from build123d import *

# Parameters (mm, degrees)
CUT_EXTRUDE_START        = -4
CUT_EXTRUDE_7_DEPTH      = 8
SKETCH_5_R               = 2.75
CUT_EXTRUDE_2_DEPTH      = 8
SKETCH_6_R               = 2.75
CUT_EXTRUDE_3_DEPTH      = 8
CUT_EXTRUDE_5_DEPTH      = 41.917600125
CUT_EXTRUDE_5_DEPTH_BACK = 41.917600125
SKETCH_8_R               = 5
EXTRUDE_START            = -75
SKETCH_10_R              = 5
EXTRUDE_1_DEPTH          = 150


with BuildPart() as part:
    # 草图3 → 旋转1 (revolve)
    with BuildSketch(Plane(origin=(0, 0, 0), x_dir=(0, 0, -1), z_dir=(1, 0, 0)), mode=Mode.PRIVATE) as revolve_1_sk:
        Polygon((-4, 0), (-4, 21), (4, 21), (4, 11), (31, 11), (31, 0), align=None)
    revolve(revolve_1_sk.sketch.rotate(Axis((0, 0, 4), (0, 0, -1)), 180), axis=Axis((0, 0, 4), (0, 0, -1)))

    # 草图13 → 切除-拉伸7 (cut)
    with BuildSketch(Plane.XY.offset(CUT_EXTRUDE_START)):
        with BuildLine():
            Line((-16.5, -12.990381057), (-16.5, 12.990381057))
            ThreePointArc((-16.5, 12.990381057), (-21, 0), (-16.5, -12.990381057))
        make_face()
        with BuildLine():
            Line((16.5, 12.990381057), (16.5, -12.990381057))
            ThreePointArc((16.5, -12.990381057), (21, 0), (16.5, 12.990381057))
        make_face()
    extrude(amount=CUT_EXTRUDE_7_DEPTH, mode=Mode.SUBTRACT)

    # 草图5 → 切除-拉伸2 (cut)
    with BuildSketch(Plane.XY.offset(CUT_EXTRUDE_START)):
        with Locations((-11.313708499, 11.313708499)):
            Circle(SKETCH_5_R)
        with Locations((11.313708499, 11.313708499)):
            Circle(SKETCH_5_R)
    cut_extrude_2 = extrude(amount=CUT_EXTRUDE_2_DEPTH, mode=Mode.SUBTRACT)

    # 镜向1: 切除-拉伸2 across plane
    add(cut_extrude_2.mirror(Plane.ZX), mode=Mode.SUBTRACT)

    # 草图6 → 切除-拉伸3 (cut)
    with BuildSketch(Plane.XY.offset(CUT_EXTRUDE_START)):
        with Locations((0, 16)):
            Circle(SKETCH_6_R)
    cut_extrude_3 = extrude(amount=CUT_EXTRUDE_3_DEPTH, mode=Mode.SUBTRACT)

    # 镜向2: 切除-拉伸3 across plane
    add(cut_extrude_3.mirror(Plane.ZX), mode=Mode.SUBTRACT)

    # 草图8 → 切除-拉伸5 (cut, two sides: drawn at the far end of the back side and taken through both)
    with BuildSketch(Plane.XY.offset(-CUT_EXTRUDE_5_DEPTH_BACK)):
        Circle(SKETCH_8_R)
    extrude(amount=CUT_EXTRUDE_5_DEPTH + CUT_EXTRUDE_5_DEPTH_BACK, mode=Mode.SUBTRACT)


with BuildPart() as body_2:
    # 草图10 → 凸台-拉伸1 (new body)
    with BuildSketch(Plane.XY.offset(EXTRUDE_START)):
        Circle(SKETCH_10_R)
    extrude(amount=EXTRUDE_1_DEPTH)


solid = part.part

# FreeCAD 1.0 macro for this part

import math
import FreeCAD as App
import Part
import Sketcher

V = App.Vector
Q = App.Units.Quantity


def add_polygon(sketch, points):
    """Adds a closed chain of lines whose ends are joined by coincident constraints."""
    first, n = sketch.GeometryCount, len(points)
    for a, b in zip(points, points[1:] + points[:1]):
        sketch.addGeometry(Part.LineSegment(App.Vector(*a, 0), App.Vector(*b, 0)), False)
    for i in range(n):
        sketch.addConstraint(Sketcher.Constraint("Coincident", first + i, 2, first + (i + 1) % n, 1))

doc = App.newDocument("Part")
params = doc.addObject("Spreadsheet::Sheet", "Params")
for row, (alias, value) in enumerate([
    ("sketch1_width", "21 mm"),
    ("sketch1_width2", "11 mm"),
    ("sketch1_height", "35 mm"),
    ("sketch1_height2", "27 mm"),
    ("revolution_angle", "360 deg"),
    ("sketch2_radius", "21 mm"),
    ("pocket1_length", "8 mm"),
    ("sketch3_diameter", "5.5 mm"),
    ("pocket2_length", "8 mm"),
    ("sketch4_diameter", "5.5 mm"),
    ("pocket3_length", "8 mm"),
    ("sketch5_diameter", "10 mm"),
    ("sketch6_diameter", "10 mm"),
    ("pad1_length", "150 mm"),
], start=1):
    params.set(f"A{row}", alias)
    params.set(f"B{row}", "=" + value)
    params.setAlias(f"B{row}", alias)

body = doc.addObject("PartDesign::Body", "Body")

# Sketch on YZ plane
sketch1 = body.newObject("Sketcher::SketchObject", "Sketch")
sketch1.AttachmentSupport = (doc.getObject("YZ_Plane"), [""])
sketch1.MapMode = "FlatFace"
add_polygon(sketch1, [(21, 4), (0, 4), (0, -31), (11, -31), (11, -4), (21, -4)])  # lines 0-5
sketch1.addConstraint(Sketcher.Constraint("Horizontal", 0))
sketch1.addConstraint(Sketcher.Constraint("Vertical", 1))
sketch1.addConstraint(Sketcher.Constraint("Horizontal", 2))
sketch1.addConstraint(Sketcher.Constraint("Vertical", 3))
sketch1.addConstraint(Sketcher.Constraint("Horizontal", 4))
sketch1.addConstraint(Sketcher.Constraint("Vertical", 5))
sketch1.addConstraint(Sketcher.Constraint("PointOnObject", 0, 2, -2))
sketch1.addConstraint(Sketcher.Constraint("DistanceX", 0, 2, 0, 1, Q("21 mm")))
sketch1.addConstraint(Sketcher.Constraint("DistanceX", 2, 1, 2, 2, Q("11 mm")))
sketch1.addConstraint(Sketcher.Constraint("DistanceY", 1, 2, 1, 1, Q("35 mm")))
sketch1.addConstraint(Sketcher.Constraint("DistanceY", 3, 1, 3, 2, Q("27 mm")))
sketch1.addConstraint(Sketcher.Constraint("DistanceY", -1, 1, 0, 2, Q("4 mm")))
sketch1.setExpression("Constraints[13]", "Params.sketch1_width")
sketch1.setExpression("Constraints[14]", "Params.sketch1_width2")
sketch1.setExpression("Constraints[15]", "Params.sketch1_height")
sketch1.setExpression("Constraints[16]", "Params.sketch1_height2")
revolution = body.newObject("PartDesign::Revolution", "Revolution")
revolution.Profile = sketch1
revolution.ReferenceAxis = (sketch1, ["V_Axis"])
revolution.setExpression("Angle", "Params.revolution_angle")

# Sketch on XY plane
sketch2 = body.newObject("Sketcher::SketchObject", "Sketch001")
sketch2.AttachmentSupport = (doc.getObject("XY_Plane"), [""])
sketch2.MapMode = "FlatFace"
sketch2.AttachmentOffset = App.Placement(V(0, 0, -4), App.Rotation())
sketch2.addGeometry(Part.LineSegment(V(-16.5, -12.990381, 0), V(-16.5, 12.990381, 0)), False)
sketch2.addGeometry(Part.ArcOfCircle(Part.Circle(V(0, 0, 0), V(0, 0, 1), 21), math.radians(141.786789), math.radians(218.213211)), False)
sketch2.addGeometry(Part.LineSegment(V(16.5, 12.990381, 0), V(16.5, -12.990381, 0)), False)
sketch2.addGeometry(Part.ArcOfCircle(Part.Circle(V(0, 0, 0), V(0, 0, 1), 21), math.radians(-38.213211), math.radians(38.213211)), False)
sketch2.addConstraint(Sketcher.Constraint("Coincident", 0, 1, 1, 2))
sketch2.addConstraint(Sketcher.Constraint("Coincident", 1, 1, 0, 2))
sketch2.addConstraint(Sketcher.Constraint("Coincident", 2, 1, 3, 2))
sketch2.addConstraint(Sketcher.Constraint("Coincident", 3, 1, 2, 2))
sketch2.addConstraint(Sketcher.Constraint("Vertical", 0))
sketch2.addConstraint(Sketcher.Constraint("Vertical", 2))
sketch2.addConstraint(Sketcher.Constraint("Coincident", 1, 3, -1, 1))
sketch2.addConstraint(Sketcher.Constraint("Coincident", 3, 3, -1, 1))
sketch2.addConstraint(Sketcher.Constraint("Equal", 1, 3))
sketch2.addConstraint(Sketcher.Constraint("Horizontal", 1, 1, 2, 1))
sketch2.addConstraint(Sketcher.Constraint("Radius", 1, Q("21 mm")))
sketch2.addConstraint(Sketcher.Constraint("DistanceX", 1, 1, 2, 1, Q("33 mm")))
sketch2.setExpression("Constraints[10]", "Params.sketch2_radius")
pocket1 = body.newObject("PartDesign::Pocket", "Pocket")
pocket1.Profile = sketch2
pocket1.setExpression("Length", "Params.pocket1_length")
pocket1.Reversed = True

# Sketch on XY plane
sketch3 = body.newObject("Sketcher::SketchObject", "Sketch002")
sketch3.AttachmentSupport = (doc.getObject("XY_Plane"), [""])
sketch3.MapMode = "FlatFace"
sketch3.AttachmentOffset = App.Placement(V(0, 0, -4), App.Rotation())
sketch3.addGeometry(Part.Circle(V(-11.313708, 11.313708, 0), V(0, 0, 1), 2.75), False)
sketch3.addGeometry(Part.Circle(V(11.313708, 11.313708, 0), V(0, 0, 1), 2.75), False)
sketch3.addConstraint(Sketcher.Constraint("Equal", 0, 1))
sketch3.addConstraint(Sketcher.Constraint("Symmetric", 0, 3, 1, 3, -2))
sketch3.addConstraint(Sketcher.Constraint("Diameter", 0, Q("5.5 mm")))
sketch3.addConstraint(Sketcher.Constraint("DistanceX", 0, 3, -1, 1, Q("11.313708 mm")))
sketch3.addConstraint(Sketcher.Constraint("DistanceY", -1, 1, 0, 3, Q("11.313708 mm")))
sketch3.setExpression("Constraints[2]", "Params.sketch3_diameter")
pocket2 = body.newObject("PartDesign::Pocket", "Pocket001")
pocket2.Profile = sketch3
pocket2.setExpression("Length", "Params.pocket2_length")
pocket2.Reversed = True
doc.recompute()

mirrored = body.newObject("PartDesign::Mirrored", "Mirrored")
mirrored.Originals = [pocket2]
mirrored.MirrorPlane = (doc.getObject("XZ_Plane"), [""])
body.Tip = mirrored

# Sketch on XY plane
sketch4 = body.newObject("Sketcher::SketchObject", "Sketch003")
sketch4.AttachmentSupport = (doc.getObject("XY_Plane"), [""])
sketch4.MapMode = "FlatFace"
sketch4.AttachmentOffset = App.Placement(V(0, 0, -4), App.Rotation())
sketch4.addGeometry(Part.Circle(V(0, 16, 0), V(0, 0, 1), 2.75), False)
sketch4.addConstraint(Sketcher.Constraint("PointOnObject", 0, 3, -2))
sketch4.addConstraint(Sketcher.Constraint("Diameter", 0, Q("5.5 mm")))
sketch4.addConstraint(Sketcher.Constraint("DistanceY", -1, 1, 0, 3, Q("16 mm")))
sketch4.setExpression("Constraints[1]", "Params.sketch4_diameter")
pocket3 = body.newObject("PartDesign::Pocket", "Pocket002")
pocket3.Profile = sketch4
pocket3.setExpression("Length", "Params.pocket3_length")
pocket3.Reversed = True
doc.recompute()

mirrored2 = body.newObject("PartDesign::Mirrored", "Mirrored001")
mirrored2.Originals = [pocket3]
mirrored2.MirrorPlane = (doc.getObject("XZ_Plane"), [""])
body.Tip = mirrored2

# Sketch on XY plane
sketch5 = body.newObject("Sketcher::SketchObject", "Sketch004")
sketch5.AttachmentSupport = (doc.getObject("XY_Plane"), [""])
sketch5.MapMode = "FlatFace"
sketch5.addGeometry(Part.Circle(V(0, 0, 0), V(0, 0, 1), 5), False)
sketch5.addConstraint(Sketcher.Constraint("Coincident", 0, 3, -1, 1))
sketch5.addConstraint(Sketcher.Constraint("Diameter", 0, Q("10 mm")))
sketch5.setExpression("Constraints[1]", "Params.sketch5_diameter")
pocket4 = body.newObject("PartDesign::Pocket", "Pocket003")
pocket4.Profile = sketch5
pocket4.Type = "ThroughAll"
pocket4.Midplane = True
body2 = doc.addObject("PartDesign::Body", "Body001")

# Sketch on XY plane
sketch6 = body2.newObject("Sketcher::SketchObject", "Sketch005")
sketch6.AttachmentSupport = (doc.getObject("XY_Plane001"), [""])
sketch6.MapMode = "FlatFace"
sketch6.AttachmentOffset = App.Placement(V(0, 0, -75), App.Rotation())
sketch6.addGeometry(Part.Circle(V(0, 0, 0), V(0, 0, 1), 5), False)
sketch6.addConstraint(Sketcher.Constraint("Coincident", 0, 3, -1, 1))
sketch6.addConstraint(Sketcher.Constraint("Diameter", 0, Q("10 mm")))
sketch6.setExpression("Constraints[1]", "Params.sketch6_diameter")
pad1 = body2.newObject("PartDesign::Pad", "Pad")
pad1.Profile = sketch6
pad1.setExpression("Length", "Params.pad1_length")
body2.Visibility = False

doc.recompute()
